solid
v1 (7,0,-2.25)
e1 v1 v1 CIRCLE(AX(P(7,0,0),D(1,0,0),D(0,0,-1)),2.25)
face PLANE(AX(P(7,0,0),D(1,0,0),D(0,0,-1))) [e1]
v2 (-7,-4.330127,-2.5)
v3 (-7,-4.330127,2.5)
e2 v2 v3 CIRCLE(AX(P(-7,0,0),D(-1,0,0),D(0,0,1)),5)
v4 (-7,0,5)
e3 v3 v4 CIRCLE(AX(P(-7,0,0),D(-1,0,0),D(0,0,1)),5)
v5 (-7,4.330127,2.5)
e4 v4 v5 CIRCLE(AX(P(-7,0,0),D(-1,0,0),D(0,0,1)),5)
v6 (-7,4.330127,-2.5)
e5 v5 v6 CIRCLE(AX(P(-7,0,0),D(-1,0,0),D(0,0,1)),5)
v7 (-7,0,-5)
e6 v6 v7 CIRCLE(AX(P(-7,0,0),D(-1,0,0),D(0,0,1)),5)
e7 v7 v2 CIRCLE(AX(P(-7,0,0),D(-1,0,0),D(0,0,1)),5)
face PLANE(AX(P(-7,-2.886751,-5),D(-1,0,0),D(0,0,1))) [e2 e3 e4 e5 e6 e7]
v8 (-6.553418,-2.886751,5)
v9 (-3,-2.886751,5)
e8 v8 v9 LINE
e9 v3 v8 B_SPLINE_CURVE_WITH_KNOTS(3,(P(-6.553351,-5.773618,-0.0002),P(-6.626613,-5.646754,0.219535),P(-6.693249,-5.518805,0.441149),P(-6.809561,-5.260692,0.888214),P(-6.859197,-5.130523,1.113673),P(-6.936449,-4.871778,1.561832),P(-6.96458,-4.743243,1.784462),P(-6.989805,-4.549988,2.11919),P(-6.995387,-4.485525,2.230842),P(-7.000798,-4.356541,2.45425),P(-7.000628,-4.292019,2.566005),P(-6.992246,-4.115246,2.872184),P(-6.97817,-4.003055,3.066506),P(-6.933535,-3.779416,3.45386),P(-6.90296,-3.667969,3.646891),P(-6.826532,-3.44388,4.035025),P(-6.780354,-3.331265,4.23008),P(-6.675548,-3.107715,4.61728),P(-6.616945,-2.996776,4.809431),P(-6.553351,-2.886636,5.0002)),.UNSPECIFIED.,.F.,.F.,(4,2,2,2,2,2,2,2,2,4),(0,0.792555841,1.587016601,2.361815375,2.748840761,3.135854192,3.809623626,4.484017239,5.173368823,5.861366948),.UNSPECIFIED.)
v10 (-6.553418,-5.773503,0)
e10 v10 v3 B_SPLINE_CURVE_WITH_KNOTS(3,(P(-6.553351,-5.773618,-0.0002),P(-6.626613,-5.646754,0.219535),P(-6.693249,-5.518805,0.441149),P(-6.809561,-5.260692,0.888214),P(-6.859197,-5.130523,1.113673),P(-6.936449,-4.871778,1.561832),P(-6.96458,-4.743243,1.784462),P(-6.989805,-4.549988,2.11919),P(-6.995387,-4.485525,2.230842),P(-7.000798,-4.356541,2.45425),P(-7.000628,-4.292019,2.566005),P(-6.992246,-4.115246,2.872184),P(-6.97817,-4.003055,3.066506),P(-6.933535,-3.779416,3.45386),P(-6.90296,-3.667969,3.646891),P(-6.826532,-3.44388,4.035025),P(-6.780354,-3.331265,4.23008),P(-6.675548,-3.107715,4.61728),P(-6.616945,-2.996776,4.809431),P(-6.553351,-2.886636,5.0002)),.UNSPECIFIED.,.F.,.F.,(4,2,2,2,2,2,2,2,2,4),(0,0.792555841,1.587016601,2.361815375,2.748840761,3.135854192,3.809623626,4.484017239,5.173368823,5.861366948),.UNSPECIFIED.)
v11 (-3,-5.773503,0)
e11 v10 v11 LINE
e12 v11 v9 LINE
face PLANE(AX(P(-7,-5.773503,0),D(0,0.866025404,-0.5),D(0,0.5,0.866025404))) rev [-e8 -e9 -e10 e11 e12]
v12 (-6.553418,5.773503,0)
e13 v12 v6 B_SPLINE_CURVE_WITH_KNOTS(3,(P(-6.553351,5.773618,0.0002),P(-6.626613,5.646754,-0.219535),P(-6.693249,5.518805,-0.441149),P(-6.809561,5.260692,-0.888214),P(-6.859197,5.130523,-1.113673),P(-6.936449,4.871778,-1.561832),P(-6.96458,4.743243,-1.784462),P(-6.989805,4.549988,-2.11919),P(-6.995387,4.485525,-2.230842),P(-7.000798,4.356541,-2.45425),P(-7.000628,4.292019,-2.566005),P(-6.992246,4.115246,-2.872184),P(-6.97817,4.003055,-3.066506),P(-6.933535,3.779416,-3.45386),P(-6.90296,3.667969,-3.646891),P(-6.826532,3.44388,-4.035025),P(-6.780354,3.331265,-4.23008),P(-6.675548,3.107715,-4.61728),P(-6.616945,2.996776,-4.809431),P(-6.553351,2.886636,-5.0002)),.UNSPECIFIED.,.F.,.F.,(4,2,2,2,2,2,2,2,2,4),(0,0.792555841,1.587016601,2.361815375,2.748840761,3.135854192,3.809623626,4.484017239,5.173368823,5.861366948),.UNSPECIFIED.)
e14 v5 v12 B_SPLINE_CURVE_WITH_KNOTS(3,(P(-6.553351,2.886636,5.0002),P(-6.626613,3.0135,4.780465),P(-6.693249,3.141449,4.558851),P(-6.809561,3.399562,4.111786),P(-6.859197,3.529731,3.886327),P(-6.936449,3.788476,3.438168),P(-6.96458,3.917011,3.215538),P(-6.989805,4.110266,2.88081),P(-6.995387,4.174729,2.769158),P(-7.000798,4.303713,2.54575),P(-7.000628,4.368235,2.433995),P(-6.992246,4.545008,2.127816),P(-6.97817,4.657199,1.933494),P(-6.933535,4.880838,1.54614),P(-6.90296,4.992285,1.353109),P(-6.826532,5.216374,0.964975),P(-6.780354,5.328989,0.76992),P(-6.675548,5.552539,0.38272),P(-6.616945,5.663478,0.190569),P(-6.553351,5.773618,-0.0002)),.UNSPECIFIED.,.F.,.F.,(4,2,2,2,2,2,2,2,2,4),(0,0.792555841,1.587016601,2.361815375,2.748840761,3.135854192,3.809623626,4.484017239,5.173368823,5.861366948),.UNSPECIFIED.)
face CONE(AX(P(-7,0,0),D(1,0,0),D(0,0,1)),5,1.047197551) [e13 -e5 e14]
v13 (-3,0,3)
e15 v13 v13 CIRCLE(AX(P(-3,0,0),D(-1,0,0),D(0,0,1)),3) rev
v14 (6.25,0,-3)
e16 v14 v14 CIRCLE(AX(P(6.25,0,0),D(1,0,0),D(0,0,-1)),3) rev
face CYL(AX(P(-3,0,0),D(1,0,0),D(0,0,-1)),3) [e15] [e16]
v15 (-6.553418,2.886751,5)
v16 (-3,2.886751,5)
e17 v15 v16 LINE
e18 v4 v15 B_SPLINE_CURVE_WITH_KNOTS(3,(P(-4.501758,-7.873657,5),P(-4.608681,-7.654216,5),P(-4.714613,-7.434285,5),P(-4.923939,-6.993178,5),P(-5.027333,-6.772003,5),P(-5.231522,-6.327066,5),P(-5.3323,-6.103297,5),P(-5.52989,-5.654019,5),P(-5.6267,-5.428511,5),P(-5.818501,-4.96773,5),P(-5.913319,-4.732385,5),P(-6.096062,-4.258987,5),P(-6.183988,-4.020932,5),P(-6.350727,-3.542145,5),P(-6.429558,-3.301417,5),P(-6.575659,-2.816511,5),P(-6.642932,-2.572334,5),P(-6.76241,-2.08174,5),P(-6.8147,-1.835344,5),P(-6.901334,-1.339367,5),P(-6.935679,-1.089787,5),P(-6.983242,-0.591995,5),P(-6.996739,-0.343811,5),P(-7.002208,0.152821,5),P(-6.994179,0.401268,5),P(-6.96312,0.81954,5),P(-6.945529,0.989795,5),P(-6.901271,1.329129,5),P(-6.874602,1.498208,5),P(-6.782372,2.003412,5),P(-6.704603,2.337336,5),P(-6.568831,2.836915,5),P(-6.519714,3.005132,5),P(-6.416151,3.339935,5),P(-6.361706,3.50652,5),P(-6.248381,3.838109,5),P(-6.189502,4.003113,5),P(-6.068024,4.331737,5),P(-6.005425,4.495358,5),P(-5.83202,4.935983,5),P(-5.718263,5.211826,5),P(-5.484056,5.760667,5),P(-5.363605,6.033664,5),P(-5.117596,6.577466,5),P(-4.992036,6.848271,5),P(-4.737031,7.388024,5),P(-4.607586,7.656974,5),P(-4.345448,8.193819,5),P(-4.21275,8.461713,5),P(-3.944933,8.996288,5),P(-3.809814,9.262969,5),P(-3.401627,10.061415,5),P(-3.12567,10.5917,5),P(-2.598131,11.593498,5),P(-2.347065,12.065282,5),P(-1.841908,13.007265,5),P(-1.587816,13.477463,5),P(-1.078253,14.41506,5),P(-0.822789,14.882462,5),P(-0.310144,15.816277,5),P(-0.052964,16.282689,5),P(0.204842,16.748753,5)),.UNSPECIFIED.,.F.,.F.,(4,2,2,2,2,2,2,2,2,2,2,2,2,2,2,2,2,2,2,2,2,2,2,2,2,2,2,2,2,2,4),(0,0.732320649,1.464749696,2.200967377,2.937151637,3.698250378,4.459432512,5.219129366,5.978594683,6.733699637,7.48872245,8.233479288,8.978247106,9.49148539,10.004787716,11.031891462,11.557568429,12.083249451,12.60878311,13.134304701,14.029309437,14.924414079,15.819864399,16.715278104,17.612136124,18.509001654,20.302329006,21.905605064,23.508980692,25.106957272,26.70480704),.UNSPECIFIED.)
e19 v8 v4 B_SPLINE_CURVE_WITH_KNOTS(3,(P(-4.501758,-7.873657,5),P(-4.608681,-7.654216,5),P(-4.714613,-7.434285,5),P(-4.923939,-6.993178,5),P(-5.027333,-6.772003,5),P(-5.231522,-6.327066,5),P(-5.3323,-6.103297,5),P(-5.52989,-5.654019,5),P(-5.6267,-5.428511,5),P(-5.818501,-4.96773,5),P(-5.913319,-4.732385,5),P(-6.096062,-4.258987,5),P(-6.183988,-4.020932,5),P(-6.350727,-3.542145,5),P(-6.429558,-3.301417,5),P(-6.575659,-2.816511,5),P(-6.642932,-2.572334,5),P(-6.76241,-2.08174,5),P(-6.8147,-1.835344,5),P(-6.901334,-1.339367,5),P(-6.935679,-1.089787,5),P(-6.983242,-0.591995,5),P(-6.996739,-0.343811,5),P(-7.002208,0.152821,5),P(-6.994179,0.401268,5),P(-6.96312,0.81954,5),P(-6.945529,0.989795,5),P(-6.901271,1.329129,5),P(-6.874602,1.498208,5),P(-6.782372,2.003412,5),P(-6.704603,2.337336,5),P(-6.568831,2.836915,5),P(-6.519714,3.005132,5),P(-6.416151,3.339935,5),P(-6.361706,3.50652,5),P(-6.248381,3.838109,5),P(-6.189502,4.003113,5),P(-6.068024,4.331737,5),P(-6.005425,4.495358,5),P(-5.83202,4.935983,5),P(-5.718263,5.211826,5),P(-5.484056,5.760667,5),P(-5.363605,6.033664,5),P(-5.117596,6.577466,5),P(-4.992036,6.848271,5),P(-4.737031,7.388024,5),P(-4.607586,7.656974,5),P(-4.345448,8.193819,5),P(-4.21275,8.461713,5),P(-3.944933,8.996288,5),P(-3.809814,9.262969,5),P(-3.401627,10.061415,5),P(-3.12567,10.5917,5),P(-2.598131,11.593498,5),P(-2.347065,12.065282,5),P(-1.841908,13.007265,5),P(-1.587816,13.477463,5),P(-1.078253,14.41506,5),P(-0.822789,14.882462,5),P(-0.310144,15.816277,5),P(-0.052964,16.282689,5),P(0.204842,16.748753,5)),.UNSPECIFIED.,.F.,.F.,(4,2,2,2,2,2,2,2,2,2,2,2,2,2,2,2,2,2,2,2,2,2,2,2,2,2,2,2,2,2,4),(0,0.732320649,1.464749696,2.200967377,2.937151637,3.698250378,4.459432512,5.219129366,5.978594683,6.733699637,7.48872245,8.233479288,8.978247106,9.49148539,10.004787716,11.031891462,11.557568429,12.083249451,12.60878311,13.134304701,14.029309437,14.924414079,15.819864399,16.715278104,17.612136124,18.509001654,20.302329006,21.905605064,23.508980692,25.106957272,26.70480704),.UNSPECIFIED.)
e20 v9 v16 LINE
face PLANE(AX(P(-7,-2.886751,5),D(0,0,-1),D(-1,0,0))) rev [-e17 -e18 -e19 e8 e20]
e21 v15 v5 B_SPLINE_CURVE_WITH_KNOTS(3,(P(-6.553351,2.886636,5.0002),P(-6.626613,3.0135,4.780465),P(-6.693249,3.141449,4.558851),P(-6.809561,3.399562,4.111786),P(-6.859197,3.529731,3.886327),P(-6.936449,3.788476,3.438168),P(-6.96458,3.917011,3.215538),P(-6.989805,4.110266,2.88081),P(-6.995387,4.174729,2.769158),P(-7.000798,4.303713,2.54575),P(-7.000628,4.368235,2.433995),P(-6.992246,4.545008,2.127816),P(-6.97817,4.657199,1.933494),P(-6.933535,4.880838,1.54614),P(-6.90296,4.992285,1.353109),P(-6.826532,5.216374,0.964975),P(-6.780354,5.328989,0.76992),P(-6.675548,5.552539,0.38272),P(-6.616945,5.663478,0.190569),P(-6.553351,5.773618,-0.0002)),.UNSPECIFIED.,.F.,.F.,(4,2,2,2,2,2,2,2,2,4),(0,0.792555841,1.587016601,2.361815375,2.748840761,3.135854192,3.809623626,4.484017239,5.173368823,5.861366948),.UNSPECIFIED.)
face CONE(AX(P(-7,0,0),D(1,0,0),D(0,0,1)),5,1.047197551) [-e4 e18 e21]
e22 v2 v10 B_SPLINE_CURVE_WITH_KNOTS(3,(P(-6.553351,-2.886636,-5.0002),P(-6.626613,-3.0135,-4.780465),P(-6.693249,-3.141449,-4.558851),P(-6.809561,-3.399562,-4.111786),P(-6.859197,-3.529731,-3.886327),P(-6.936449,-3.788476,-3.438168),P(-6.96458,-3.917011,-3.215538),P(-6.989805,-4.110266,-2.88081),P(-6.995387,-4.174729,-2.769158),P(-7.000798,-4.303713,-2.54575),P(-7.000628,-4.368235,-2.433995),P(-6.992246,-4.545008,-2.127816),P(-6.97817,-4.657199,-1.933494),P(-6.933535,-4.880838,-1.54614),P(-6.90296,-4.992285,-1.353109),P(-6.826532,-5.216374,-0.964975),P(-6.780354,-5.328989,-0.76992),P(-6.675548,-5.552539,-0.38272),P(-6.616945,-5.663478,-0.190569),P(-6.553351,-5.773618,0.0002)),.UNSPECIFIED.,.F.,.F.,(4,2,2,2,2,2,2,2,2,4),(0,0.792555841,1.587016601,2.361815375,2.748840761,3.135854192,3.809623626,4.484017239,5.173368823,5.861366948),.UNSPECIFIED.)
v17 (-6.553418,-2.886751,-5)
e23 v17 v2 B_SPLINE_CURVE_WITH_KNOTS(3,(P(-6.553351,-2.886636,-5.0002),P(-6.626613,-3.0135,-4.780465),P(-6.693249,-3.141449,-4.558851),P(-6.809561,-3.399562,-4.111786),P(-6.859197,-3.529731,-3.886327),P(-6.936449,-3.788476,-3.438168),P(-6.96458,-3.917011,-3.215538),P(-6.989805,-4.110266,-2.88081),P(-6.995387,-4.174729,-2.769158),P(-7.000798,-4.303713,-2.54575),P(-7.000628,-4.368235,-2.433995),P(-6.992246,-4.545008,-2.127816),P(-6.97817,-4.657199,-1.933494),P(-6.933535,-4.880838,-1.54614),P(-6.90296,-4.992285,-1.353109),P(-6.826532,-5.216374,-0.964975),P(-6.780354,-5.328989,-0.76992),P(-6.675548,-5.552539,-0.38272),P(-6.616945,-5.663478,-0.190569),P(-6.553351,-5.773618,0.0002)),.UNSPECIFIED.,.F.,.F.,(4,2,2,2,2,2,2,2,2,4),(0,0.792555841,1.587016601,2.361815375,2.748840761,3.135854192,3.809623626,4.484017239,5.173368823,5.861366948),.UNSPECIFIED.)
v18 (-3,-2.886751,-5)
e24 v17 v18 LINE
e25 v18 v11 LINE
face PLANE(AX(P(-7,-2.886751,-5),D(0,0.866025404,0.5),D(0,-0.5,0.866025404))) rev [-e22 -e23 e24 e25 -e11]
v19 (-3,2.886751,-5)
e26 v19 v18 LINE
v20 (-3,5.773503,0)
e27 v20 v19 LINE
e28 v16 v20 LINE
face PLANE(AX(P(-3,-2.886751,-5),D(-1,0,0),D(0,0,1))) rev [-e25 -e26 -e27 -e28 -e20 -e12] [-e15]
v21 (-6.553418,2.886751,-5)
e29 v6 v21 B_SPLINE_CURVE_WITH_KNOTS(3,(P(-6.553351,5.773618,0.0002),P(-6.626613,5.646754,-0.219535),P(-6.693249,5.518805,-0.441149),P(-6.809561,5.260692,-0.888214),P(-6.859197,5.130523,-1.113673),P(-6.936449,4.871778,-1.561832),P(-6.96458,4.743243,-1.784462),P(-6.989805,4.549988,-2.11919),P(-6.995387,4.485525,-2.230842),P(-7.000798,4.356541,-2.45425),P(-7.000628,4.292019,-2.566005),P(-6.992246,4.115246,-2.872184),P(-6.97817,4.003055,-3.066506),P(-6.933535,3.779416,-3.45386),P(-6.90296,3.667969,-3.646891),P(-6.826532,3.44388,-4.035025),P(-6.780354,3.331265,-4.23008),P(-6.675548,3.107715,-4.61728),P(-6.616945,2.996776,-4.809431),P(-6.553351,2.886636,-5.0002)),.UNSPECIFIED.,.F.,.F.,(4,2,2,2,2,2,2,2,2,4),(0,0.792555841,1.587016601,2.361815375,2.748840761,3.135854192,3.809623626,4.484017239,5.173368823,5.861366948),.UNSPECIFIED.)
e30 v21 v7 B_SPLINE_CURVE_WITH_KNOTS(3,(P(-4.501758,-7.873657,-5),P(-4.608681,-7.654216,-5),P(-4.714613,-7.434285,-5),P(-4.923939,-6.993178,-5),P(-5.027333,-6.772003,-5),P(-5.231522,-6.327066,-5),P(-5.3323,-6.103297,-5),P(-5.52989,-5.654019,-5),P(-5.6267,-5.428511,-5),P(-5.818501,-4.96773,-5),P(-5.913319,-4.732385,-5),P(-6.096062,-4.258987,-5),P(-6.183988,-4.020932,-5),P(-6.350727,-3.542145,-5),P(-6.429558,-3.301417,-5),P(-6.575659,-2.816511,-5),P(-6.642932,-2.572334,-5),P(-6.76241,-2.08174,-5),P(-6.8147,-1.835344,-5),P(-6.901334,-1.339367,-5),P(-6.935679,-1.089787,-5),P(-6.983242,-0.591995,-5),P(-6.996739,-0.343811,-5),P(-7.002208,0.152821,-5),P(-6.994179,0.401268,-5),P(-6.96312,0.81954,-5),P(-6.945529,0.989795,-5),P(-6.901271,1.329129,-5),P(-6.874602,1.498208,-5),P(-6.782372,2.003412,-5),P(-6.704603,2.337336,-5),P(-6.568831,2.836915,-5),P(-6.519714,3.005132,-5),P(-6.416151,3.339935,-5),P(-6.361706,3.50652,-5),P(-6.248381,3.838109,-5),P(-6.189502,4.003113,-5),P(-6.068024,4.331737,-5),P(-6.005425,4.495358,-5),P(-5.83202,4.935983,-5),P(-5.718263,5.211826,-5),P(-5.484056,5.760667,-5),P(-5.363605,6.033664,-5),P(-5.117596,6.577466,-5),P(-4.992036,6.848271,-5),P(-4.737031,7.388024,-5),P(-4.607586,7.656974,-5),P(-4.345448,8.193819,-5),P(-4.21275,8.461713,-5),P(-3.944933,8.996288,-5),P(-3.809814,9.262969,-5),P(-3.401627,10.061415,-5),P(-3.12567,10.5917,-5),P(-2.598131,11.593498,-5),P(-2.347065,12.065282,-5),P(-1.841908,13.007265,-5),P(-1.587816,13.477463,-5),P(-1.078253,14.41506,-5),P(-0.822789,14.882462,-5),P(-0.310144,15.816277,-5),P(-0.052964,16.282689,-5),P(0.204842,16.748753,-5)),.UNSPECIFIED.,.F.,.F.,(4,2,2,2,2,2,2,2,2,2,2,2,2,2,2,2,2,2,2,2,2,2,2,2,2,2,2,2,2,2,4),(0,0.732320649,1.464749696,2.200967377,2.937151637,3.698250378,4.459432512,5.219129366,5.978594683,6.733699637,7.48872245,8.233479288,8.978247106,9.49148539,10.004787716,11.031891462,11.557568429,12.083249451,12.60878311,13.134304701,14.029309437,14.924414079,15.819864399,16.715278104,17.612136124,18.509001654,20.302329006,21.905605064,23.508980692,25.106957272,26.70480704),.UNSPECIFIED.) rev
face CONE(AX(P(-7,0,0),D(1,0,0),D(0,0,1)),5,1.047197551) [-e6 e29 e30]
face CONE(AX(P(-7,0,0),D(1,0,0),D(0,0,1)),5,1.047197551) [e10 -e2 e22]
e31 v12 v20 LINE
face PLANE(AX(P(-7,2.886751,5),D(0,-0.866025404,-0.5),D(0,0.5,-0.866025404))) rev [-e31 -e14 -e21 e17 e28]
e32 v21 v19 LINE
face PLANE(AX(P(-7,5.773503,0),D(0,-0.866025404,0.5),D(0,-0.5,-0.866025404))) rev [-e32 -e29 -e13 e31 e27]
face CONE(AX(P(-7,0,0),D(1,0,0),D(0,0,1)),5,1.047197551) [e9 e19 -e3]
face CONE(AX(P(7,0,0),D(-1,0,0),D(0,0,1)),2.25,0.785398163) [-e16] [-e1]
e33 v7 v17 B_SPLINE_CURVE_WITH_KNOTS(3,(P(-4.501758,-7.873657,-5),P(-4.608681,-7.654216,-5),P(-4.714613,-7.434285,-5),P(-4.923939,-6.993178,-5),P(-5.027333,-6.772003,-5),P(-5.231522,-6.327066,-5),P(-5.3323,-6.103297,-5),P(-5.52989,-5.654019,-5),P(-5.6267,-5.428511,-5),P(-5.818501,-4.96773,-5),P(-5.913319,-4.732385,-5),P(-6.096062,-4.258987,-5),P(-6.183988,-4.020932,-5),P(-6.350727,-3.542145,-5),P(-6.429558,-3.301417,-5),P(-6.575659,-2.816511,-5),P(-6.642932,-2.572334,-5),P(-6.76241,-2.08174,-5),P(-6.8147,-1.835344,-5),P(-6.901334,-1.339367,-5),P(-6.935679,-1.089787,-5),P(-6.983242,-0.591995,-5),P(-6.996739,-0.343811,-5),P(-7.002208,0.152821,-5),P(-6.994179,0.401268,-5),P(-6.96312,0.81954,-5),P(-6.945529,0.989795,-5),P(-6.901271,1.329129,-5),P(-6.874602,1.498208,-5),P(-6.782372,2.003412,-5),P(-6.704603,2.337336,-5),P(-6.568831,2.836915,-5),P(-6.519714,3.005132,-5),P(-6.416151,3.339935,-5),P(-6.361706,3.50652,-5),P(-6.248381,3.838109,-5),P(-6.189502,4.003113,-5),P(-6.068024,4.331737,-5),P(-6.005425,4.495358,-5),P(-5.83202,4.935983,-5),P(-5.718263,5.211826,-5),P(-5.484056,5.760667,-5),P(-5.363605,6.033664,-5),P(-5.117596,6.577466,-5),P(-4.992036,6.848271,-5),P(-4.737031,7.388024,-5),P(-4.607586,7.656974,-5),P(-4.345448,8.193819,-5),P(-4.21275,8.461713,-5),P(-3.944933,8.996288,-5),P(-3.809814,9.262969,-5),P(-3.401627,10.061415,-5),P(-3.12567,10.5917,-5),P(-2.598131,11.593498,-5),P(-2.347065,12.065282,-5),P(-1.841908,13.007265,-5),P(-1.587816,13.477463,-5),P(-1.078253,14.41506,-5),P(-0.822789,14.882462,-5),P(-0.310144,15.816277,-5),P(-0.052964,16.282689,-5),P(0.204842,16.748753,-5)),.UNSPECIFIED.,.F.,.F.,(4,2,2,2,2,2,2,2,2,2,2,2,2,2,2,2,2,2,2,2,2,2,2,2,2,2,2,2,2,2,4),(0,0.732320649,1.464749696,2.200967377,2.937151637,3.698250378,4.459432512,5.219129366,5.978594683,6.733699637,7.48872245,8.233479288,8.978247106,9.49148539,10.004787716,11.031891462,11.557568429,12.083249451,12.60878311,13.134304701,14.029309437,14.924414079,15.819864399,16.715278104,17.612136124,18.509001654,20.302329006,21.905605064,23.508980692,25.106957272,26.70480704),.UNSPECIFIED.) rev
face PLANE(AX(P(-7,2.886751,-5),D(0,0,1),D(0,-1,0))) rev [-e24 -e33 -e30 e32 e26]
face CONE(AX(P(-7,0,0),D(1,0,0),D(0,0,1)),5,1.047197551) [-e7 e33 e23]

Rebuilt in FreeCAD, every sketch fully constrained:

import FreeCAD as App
import Part
import Sketcher

V = App.Vector
Q = App.Units.Quantity


def edges_at(feature, points):
    """Names of the edges that pass closest to the given points."""
    edges = feature.Shape.Edges
    near = lambda p: min(range(len(edges)), key=lambda i: edges[i].distToShape(Part.Vertex(*p))[0])
    return sorted({f"Edge{near(p) + 1}" for p in points})

doc = App.newDocument("Part")
body = doc.addObject("PartDesign::Body", "Body")

sketch1 = doc.addObject("Sketcher::SketchObject", "Sketch")
body.addObject(sketch1)
sketch1.AttachmentSupport = (doc.YZ_Plane, [""])
sketch1.MapMode = "FlatFace"
sketch1.AttachmentOffset = App.Placement(V(0, 0, 7), App.Rotation())
sketch1.addGeometry(Part.Circle(V(0, 0, 0), V(0, 0, 1), 3), False)
sketch1.addConstraint(Sketcher.Constraint("Coincident", 0, 3, -1, 1))
sketch1.addConstraint(Sketcher.Constraint("Diameter", 0, 6.0))
pad1 = doc.addObject("PartDesign::Pad", "Pad")
body.addObject(pad1)
pad1.Profile = sketch1
pad1.Length = 10
pad1.Reversed = True
doc.recompute()

chamfer = doc.addObject("PartDesign::Chamfer", "Chamfer")
body.addObject(chamfer)
chamfer.Base = (pad1, edges_at(pad1, [(7, 0, 3)]))
chamfer.Size = 0.75

sketch2 = doc.addObject("Sketcher::SketchObject", "Sketch001")
body.addObject(sketch2)
sketch2.AttachmentSupport = (doc.YZ_Plane, [""])
sketch2.MapMode = "FlatFace"
sketch2.AttachmentOffset = App.Placement(V(0, 0, -3), App.Rotation())
sketch2.addGeometry(Part.LineSegment(V(-3, -5, 0), V(-6, 0, 0)), False)
sketch2.addGeometry(Part.LineSegment(V(-6, 0, 0), V(-3, 5, 0)), False)
sketch2.addGeometry(Part.LineSegment(V(-3, 5, 0), V(3, 5, 0)), False)
sketch2.addGeometry(Part.LineSegment(V(3, 5, 0), V(6, 0, 0)), False)
sketch2.addGeometry(Part.LineSegment(V(6, 0, 0), V(3, -5, 0)), False)
sketch2.addGeometry(Part.LineSegment(V(3, -5, 0), V(-3, -5, 0)), False)
sketch2.addConstraint(Sketcher.Constraint("Coincident", 0, 2, 1, 1))
sketch2.addConstraint(Sketcher.Constraint("Coincident", 1, 2, 2, 1))
sketch2.addConstraint(Sketcher.Constraint("Coincident", 2, 2, 3, 1))
sketch2.addConstraint(Sketcher.Constraint("Coincident", 3, 2, 4, 1))
sketch2.addConstraint(Sketcher.Constraint("Coincident", 4, 2, 5, 1))
sketch2.addConstraint(Sketcher.Constraint("Coincident", 5, 2, 0, 1))
sketch2.addConstraint(Sketcher.Constraint("Horizontal", 2))
sketch2.addConstraint(Sketcher.Constraint("Horizontal", 5))
sketch2.addConstraint(Sketcher.Constraint("Symmetric", 0, 2, 3, 2, -1, 1))
sketch2.addConstraint(Sketcher.Constraint("Symmetric", 1, 2, 4, 2, -1, 1))
sketch2.addConstraint(Sketcher.Constraint("PointOnObject", 0, 2, -1))
sketch2.addConstraint(Sketcher.Constraint("Parallel", 0, 3))
sketch2.addConstraint(Sketcher.Constraint("Vertical", 2, 2, 4, 2))
sketch2.addConstraint(Sketcher.Constraint("Angle", 0, Q("120 deg")))
sketch2.addConstraint(Sketcher.Constraint("DistanceY", -1, 1, 1, 2, 5.0))
sketch2.addConstraint(Sketcher.Constraint("DistanceX", 2, 1, 2, 2, 5.773503))
pad2 = doc.addObject("PartDesign::Pad", "Pad001")
body.addObject(pad2)
pad2.Profile = sketch2
pad2.Length = 4
pad2.Reversed = True

sketch3 = doc.addObject("Sketcher::SketchObject", "Sketch002")
body.addObject(sketch3)
sketch3.AttachmentSupport = (doc.YZ_Plane, [""])
sketch3.MapMode = "FlatFace"
sketch3.AttachmentOffset = App.Placement(V(0, 0, -7), App.Rotation())
sketch3.addGeometry(Part.LineSegment(V(35, -34, 0), V(-35, -34, 0)), False)
sketch3.addGeometry(Part.LineSegment(V(-35, -34, 0), V(-35, 34, 0)), False)
sketch3.addGeometry(Part.LineSegment(V(-35, 34, 0), V(35, 34, 0)), False)
sketch3.addGeometry(Part.LineSegment(V(35, 34, 0), V(35, -34, 0)), False)
sketch3.addGeometry(Part.Circle(V(0, 0, 0), V(0, 0, 1), 5), False)
sketch3.addConstraint(Sketcher.Constraint("Coincident", 0, 2, 1, 1))
sketch3.addConstraint(Sketcher.Constraint("Coincident", 1, 2, 2, 1))
sketch3.addConstraint(Sketcher.Constraint("Coincident", 2, 2, 3, 1))
sketch3.addConstraint(Sketcher.Constraint("Coincident", 3, 2, 0, 1))
sketch3.addConstraint(Sketcher.Constraint("Horizontal", 0))
sketch3.addConstraint(Sketcher.Constraint("Vertical", 1))
sketch3.addConstraint(Sketcher.Constraint("Horizontal", 2))
sketch3.addConstraint(Sketcher.Constraint("Vertical", 3))
sketch3.addConstraint(Sketcher.Constraint("Coincident", 4, 3, -1, 1))
sketch3.addConstraint(Sketcher.Constraint("Symmetric", 0, 2, 2, 2, -1, 1))
sketch3.addConstraint(Sketcher.Constraint("Diameter", 4, 10.0))
sketch3.addConstraint(Sketcher.Constraint("DistanceX", 0, 2, 0, 1, 69.654))
sketch3.addConstraint(Sketcher.Constraint("DistanceY", 1, 1, 1, 2, 68.106))
pocket1 = doc.addObject("PartDesign::Pocket", "Pocket")
body.addObject(pocket1)
pocket1.Profile = sketch3
pocket1.Length = 15
pocket1.Reversed = True
pocket1.TaperAngle = 60

doc.recompute()
